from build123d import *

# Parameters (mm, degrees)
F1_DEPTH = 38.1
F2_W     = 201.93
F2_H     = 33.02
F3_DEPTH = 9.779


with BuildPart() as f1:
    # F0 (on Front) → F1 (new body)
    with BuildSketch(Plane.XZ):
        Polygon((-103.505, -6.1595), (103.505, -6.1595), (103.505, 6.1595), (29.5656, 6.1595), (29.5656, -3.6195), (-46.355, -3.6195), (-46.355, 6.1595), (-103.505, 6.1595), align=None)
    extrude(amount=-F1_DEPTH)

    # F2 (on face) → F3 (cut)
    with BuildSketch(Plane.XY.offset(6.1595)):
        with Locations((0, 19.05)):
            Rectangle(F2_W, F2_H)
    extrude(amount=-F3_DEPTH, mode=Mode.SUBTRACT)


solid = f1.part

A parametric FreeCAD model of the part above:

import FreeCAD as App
import Part
import Sketcher

V = App.Vector
Q = App.Units.Quantity


def add_polygon(sketch, points):
    """Adds a closed chain of lines whose ends are joined by coincident constraints."""
    first, n = sketch.GeometryCount, len(points)
    for a, b in zip(points, points[1:] + points[:1]):
        sketch.addGeometry(Part.LineSegment(App.Vector(*a, 0), App.Vector(*b, 0)), False)
    for i in range(n):
        sketch.addConstraint(Sketcher.Constraint("Coincident", first + i, 2, first + (i + 1) % n, 1))

doc = App.newDocument("Part")
body = doc.addObject("PartDesign::Body", "Body")

# Sketch on XZ plane
sketch1 = body.newObject("Sketcher::SketchObject", "Sketch")
sketch1.AttachmentSupport = (doc.getObject("XZ_Plane"), [""])
sketch1.MapMode = "FlatFace"
add_polygon(sketch1, [(-103.505, -6.1595), (103.505, -6.1595), (103.505, 6.1595), (29.5656, 6.1595), (29.5656, -3.6195), (-46.355, -3.6195), (-46.355, 6.1595), (-103.505, 6.1595)])  # lines 0-7
sketch1.addConstraint(Sketcher.Constraint("Horizontal", 0))
sketch1.addConstraint(Sketcher.Constraint("Vertical", 1))
sketch1.addConstraint(Sketcher.Constraint("Horizontal", 2))
sketch1.addConstraint(Sketcher.Constraint("Vertical", 3))
sketch1.addConstraint(Sketcher.Constraint("Horizontal", 4))
sketch1.addConstraint(Sketcher.Constraint("Vertical", 5))
sketch1.addConstraint(Sketcher.Constraint("Horizontal", 6))
sketch1.addConstraint(Sketcher.Constraint("Vertical", 7))
sketch1.addConstraint(Sketcher.Constraint("Symmetric", 0, 2, 6, 2, -1, 1))
sketch1.addConstraint(Sketcher.Constraint("Horizontal", 2, 2, 5, 2))
sketch1.addConstraint(Sketcher.Constraint("DistanceX", 0, 1, 0, 2, Q("8.15 in")))
sketch1.addConstraint(Sketcher.Constraint("DistanceX", 6, 2, 6, 1, Q("2.25 in")))
sketch1.addConstraint(Sketcher.Constraint("DistanceY", 0, 2, 3, 2, Q("0.1 in")))
sketch1.addConstraint(Sketcher.Constraint("DistanceX", 2, 2, 2, 1, Q("2.911 in")))
sketch1.addConstraint(Sketcher.Constraint("DistanceY", 1, 1, 1, 2, Q("0.485 in")))
pad1 = body.newObject("PartDesign::Pad", "Pad")
pad1.Profile = sketch1
pad1.Length = Q("1.5 in")
pad1.Reversed = True

# Sketch on XY plane
sketch2 = body.newObject("Sketcher::SketchObject", "Sketch001")
sketch2.AttachmentSupport = (doc.getObject("XY_Plane"), [""])
sketch2.MapMode = "FlatFace"
sketch2.AttachmentOffset = App.Placement(V(0, 0, 0.2425 * 25.4), App.Rotation())
add_polygon(sketch2, [(-100.965, 35.56), (-100.965, 2.54), (100.965, 2.54), (100.965, 35.56)])  # lines 0-3
sketch2.addConstraint(Sketcher.Constraint("Vertical", 0))
sketch2.addConstraint(Sketcher.Constraint("Horizontal", 1))
sketch2.addConstraint(Sketcher.Constraint("Vertical", 2))
sketch2.addConstraint(Sketcher.Constraint("Horizontal", 3))
sketch2.addConstraint(Sketcher.Constraint("DistanceY", 0, 2, 0, 1, Q("1.3 in")))
sketch2.addConstraint(Sketcher.Constraint("DistanceX", 1, 1, 1, 2, Q("7.95 in")))
sketch2.addConstraint(Sketcher.Constraint("DistanceY", -1, 1, 0, 2, Q("0.1 in")))
sketch2.addConstraint(Sketcher.Constraint("DistanceX", 0, 2, -1, 1, Q("3.975 in")))
pocket1 = body.newObject("PartDesign::Pocket", "Pocket")
pocket1.Profile = sketch2
pocket1.Length = Q("0.385 in")

doc.recompute()
